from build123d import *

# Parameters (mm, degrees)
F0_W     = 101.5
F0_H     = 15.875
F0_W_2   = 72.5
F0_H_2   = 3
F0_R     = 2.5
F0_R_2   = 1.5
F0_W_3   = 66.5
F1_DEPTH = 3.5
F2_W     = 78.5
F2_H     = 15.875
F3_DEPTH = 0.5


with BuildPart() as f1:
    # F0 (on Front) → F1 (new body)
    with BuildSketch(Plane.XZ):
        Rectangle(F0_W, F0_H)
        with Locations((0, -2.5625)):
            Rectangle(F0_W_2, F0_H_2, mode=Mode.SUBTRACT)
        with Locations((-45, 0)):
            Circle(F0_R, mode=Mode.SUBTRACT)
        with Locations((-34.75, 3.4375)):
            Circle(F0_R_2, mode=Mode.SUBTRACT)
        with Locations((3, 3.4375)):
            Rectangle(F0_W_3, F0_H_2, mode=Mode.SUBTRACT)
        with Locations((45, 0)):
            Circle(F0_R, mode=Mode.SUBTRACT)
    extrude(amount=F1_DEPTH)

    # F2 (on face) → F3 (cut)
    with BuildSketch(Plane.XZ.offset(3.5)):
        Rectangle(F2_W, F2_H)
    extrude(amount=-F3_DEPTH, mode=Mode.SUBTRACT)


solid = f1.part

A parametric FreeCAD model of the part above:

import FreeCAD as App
import Part
import Sketcher


def add_polygon(sketch, points):
    """Adds a closed chain of lines whose ends are joined by coincident constraints."""
    first, n = sketch.GeometryCount, len(points)
    for a, b in zip(points, points[1:] + points[:1]):
        sketch.addGeometry(Part.LineSegment(App.Vector(*a, 0), App.Vector(*b, 0)), False)
    for i in range(n):
        sketch.addConstraint(Sketcher.Constraint("Coincident", first + i, 2, first + (i + 1) % n, 1))

doc = App.newDocument("Part")
body = doc.addObject("PartDesign::Body", "Body")

# Sketch on XZ plane
sketch1 = body.newObject("Sketcher::SketchObject", "Sketch")
sketch1.AttachmentSupport = (doc.getObject("XZ_Plane"), [""])
sketch1.MapMode = "FlatFace"
add_polygon(sketch1, [(-50.75, 7.9375), (-50.75, -7.9375), (50.75, -7.9375), (50.75, 7.9375)])  # lines 0-3
sketch1.addGeometry(Part.Circle(App.Vector(-45, 0, 0), App.Vector(0, 0, 1), 2.5), False)  # 4
add_polygon(sketch1, [(36.25, -4.0625), (-36.25, -4.0625), (-36.25, -1.0625), (36.25, -1.0625)])  # lines 5-8
sketch1.addGeometry(Part.Circle(App.Vector(45, 0, 0), App.Vector(0, 0, 1), 2.5), False)  # 9
sketch1.addGeometry(Part.Circle(App.Vector(-34.75, 3.4375, 0), App.Vector(0, 0, 1), 1.5), False)  # 10
add_polygon(sketch1, [(36.25, 1.9375), (-30.25, 1.9375), (-30.25, 4.9375), (36.25, 4.9375)])  # lines 11-14
sketch1.addConstraint(Sketcher.Constraint("Vertical", 0))
sketch1.addConstraint(Sketcher.Constraint("Horizontal", 1))
sketch1.addConstraint(Sketcher.Constraint("Vertical", 2))
sketch1.addConstraint(Sketcher.Constraint("Horizontal", 3))
sketch1.addConstraint(Sketcher.Constraint("Horizontal", 5))
sketch1.addConstraint(Sketcher.Constraint("Vertical", 6))
sketch1.addConstraint(Sketcher.Constraint("Horizontal", 7))
sketch1.addConstraint(Sketcher.Constraint("Vertical", 8))
sketch1.addConstraint(Sketcher.Constraint("Horizontal", 11))
sketch1.addConstraint(Sketcher.Constraint("Vertical", 12))
sketch1.addConstraint(Sketcher.Constraint("Horizontal", 13))
sketch1.addConstraint(Sketcher.Constraint("Vertical", 14))
sketch1.addConstraint(Sketcher.Constraint("Equal", 4, 9))
sketch1.addConstraint(Sketcher.Constraint("Symmetric", 4, 3, 9, 3, -1, 1))
sketch1.addConstraint(Sketcher.Constraint("Symmetric", 0, 2, 2, 2, -1, 1))
sketch1.addConstraint(Sketcher.Constraint("PointOnObject", 4, 3, -1))
sketch1.addConstraint(Sketcher.Constraint("Vertical", 8, 2, 13, 2))
sketch1.addConstraint(Sketcher.Constraint("Equal", 8, 12))
sketch1.addConstraint(Sketcher.Constraint("Diameter", 4, 5.0))
sketch1.addConstraint(Sketcher.Constraint("Diameter", 10, 3.0))
sketch1.addConstraint(Sketcher.Constraint("DistanceY", 6, 1, 6, 2, 3.0))
sketch1.addConstraint(Sketcher.Constraint("DistanceX", 1, 1, 1, 2, 101.5))
sketch1.addConstraint(Sketcher.Constraint("DistanceX", 5, 2, 5, 1, 72.5))
sketch1.addConstraint(Sketcher.Constraint("DistanceX", 11, 2, 11, 1, 66.5))
sketch1.addConstraint(Sketcher.Constraint("DistanceX", 4, 3, -1, 1, 45.0))
sketch1.addConstraint(Sketcher.Constraint("DistanceX", 0, 2, 10, 3, 16.0))
sketch1.addConstraint(Sketcher.Constraint("DistanceY", 5, 2, 3, 2, 12.0))
sketch1.addConstraint(Sketcher.Constraint("DistanceX", 10, 3, 7, 2, 71.0))
sketch1.addConstraint(Sketcher.Constraint("DistanceY", 6, 2, 11, 2, 3.0))
sketch1.addConstraint(Sketcher.Constraint("DistanceY", 10, 3, 2, 2, 4.5))
sketch1.addConstraint(Sketcher.Constraint("DistanceY", 0, 2, 0, 1, 15.875))
pad1 = body.newObject("PartDesign::Pad", "Pad")
pad1.Profile = sketch1
pad1.Length = 3.5

# Sketch on XZ plane
sketch2 = body.newObject("Sketcher::SketchObject", "Sketch001")
sketch2.AttachmentSupport = (doc.getObject("XZ_Plane"), [""])
sketch2.MapMode = "FlatFace"
sketch2.AttachmentOffset = App.Placement(App.Vector(0, 0, 3.5), App.Rotation())
add_polygon(sketch2, [(-39.25, 7.9375), (-39.25, -7.9375), (39.25, -7.9375), (39.25, 7.9375)])  # lines 0-3
sketch2.addConstraint(Sketcher.Constraint("Vertical", 0))
sketch2.addConstraint(Sketcher.Constraint("Horizontal", 1))
sketch2.addConstraint(Sketcher.Constraint("Vertical", 2))
sketch2.addConstraint(Sketcher.Constraint("Horizontal", 3))
sketch2.addConstraint(Sketcher.Constraint("Symmetric", 0, 2, 2, 2, -1, 1))
sketch2.addConstraint(Sketcher.Constraint("DistanceX", 1, 1, 1, 2, 78.5))
sketch2.addConstraint(Sketcher.Constraint("DistanceY", 0, 2, 0, 1, 15.875))
pocket1 = body.newObject("PartDesign::Pocket", "Pocket")
pocket1.Profile = sketch2
pocket1.Length = 0.5

doc.recompute()
